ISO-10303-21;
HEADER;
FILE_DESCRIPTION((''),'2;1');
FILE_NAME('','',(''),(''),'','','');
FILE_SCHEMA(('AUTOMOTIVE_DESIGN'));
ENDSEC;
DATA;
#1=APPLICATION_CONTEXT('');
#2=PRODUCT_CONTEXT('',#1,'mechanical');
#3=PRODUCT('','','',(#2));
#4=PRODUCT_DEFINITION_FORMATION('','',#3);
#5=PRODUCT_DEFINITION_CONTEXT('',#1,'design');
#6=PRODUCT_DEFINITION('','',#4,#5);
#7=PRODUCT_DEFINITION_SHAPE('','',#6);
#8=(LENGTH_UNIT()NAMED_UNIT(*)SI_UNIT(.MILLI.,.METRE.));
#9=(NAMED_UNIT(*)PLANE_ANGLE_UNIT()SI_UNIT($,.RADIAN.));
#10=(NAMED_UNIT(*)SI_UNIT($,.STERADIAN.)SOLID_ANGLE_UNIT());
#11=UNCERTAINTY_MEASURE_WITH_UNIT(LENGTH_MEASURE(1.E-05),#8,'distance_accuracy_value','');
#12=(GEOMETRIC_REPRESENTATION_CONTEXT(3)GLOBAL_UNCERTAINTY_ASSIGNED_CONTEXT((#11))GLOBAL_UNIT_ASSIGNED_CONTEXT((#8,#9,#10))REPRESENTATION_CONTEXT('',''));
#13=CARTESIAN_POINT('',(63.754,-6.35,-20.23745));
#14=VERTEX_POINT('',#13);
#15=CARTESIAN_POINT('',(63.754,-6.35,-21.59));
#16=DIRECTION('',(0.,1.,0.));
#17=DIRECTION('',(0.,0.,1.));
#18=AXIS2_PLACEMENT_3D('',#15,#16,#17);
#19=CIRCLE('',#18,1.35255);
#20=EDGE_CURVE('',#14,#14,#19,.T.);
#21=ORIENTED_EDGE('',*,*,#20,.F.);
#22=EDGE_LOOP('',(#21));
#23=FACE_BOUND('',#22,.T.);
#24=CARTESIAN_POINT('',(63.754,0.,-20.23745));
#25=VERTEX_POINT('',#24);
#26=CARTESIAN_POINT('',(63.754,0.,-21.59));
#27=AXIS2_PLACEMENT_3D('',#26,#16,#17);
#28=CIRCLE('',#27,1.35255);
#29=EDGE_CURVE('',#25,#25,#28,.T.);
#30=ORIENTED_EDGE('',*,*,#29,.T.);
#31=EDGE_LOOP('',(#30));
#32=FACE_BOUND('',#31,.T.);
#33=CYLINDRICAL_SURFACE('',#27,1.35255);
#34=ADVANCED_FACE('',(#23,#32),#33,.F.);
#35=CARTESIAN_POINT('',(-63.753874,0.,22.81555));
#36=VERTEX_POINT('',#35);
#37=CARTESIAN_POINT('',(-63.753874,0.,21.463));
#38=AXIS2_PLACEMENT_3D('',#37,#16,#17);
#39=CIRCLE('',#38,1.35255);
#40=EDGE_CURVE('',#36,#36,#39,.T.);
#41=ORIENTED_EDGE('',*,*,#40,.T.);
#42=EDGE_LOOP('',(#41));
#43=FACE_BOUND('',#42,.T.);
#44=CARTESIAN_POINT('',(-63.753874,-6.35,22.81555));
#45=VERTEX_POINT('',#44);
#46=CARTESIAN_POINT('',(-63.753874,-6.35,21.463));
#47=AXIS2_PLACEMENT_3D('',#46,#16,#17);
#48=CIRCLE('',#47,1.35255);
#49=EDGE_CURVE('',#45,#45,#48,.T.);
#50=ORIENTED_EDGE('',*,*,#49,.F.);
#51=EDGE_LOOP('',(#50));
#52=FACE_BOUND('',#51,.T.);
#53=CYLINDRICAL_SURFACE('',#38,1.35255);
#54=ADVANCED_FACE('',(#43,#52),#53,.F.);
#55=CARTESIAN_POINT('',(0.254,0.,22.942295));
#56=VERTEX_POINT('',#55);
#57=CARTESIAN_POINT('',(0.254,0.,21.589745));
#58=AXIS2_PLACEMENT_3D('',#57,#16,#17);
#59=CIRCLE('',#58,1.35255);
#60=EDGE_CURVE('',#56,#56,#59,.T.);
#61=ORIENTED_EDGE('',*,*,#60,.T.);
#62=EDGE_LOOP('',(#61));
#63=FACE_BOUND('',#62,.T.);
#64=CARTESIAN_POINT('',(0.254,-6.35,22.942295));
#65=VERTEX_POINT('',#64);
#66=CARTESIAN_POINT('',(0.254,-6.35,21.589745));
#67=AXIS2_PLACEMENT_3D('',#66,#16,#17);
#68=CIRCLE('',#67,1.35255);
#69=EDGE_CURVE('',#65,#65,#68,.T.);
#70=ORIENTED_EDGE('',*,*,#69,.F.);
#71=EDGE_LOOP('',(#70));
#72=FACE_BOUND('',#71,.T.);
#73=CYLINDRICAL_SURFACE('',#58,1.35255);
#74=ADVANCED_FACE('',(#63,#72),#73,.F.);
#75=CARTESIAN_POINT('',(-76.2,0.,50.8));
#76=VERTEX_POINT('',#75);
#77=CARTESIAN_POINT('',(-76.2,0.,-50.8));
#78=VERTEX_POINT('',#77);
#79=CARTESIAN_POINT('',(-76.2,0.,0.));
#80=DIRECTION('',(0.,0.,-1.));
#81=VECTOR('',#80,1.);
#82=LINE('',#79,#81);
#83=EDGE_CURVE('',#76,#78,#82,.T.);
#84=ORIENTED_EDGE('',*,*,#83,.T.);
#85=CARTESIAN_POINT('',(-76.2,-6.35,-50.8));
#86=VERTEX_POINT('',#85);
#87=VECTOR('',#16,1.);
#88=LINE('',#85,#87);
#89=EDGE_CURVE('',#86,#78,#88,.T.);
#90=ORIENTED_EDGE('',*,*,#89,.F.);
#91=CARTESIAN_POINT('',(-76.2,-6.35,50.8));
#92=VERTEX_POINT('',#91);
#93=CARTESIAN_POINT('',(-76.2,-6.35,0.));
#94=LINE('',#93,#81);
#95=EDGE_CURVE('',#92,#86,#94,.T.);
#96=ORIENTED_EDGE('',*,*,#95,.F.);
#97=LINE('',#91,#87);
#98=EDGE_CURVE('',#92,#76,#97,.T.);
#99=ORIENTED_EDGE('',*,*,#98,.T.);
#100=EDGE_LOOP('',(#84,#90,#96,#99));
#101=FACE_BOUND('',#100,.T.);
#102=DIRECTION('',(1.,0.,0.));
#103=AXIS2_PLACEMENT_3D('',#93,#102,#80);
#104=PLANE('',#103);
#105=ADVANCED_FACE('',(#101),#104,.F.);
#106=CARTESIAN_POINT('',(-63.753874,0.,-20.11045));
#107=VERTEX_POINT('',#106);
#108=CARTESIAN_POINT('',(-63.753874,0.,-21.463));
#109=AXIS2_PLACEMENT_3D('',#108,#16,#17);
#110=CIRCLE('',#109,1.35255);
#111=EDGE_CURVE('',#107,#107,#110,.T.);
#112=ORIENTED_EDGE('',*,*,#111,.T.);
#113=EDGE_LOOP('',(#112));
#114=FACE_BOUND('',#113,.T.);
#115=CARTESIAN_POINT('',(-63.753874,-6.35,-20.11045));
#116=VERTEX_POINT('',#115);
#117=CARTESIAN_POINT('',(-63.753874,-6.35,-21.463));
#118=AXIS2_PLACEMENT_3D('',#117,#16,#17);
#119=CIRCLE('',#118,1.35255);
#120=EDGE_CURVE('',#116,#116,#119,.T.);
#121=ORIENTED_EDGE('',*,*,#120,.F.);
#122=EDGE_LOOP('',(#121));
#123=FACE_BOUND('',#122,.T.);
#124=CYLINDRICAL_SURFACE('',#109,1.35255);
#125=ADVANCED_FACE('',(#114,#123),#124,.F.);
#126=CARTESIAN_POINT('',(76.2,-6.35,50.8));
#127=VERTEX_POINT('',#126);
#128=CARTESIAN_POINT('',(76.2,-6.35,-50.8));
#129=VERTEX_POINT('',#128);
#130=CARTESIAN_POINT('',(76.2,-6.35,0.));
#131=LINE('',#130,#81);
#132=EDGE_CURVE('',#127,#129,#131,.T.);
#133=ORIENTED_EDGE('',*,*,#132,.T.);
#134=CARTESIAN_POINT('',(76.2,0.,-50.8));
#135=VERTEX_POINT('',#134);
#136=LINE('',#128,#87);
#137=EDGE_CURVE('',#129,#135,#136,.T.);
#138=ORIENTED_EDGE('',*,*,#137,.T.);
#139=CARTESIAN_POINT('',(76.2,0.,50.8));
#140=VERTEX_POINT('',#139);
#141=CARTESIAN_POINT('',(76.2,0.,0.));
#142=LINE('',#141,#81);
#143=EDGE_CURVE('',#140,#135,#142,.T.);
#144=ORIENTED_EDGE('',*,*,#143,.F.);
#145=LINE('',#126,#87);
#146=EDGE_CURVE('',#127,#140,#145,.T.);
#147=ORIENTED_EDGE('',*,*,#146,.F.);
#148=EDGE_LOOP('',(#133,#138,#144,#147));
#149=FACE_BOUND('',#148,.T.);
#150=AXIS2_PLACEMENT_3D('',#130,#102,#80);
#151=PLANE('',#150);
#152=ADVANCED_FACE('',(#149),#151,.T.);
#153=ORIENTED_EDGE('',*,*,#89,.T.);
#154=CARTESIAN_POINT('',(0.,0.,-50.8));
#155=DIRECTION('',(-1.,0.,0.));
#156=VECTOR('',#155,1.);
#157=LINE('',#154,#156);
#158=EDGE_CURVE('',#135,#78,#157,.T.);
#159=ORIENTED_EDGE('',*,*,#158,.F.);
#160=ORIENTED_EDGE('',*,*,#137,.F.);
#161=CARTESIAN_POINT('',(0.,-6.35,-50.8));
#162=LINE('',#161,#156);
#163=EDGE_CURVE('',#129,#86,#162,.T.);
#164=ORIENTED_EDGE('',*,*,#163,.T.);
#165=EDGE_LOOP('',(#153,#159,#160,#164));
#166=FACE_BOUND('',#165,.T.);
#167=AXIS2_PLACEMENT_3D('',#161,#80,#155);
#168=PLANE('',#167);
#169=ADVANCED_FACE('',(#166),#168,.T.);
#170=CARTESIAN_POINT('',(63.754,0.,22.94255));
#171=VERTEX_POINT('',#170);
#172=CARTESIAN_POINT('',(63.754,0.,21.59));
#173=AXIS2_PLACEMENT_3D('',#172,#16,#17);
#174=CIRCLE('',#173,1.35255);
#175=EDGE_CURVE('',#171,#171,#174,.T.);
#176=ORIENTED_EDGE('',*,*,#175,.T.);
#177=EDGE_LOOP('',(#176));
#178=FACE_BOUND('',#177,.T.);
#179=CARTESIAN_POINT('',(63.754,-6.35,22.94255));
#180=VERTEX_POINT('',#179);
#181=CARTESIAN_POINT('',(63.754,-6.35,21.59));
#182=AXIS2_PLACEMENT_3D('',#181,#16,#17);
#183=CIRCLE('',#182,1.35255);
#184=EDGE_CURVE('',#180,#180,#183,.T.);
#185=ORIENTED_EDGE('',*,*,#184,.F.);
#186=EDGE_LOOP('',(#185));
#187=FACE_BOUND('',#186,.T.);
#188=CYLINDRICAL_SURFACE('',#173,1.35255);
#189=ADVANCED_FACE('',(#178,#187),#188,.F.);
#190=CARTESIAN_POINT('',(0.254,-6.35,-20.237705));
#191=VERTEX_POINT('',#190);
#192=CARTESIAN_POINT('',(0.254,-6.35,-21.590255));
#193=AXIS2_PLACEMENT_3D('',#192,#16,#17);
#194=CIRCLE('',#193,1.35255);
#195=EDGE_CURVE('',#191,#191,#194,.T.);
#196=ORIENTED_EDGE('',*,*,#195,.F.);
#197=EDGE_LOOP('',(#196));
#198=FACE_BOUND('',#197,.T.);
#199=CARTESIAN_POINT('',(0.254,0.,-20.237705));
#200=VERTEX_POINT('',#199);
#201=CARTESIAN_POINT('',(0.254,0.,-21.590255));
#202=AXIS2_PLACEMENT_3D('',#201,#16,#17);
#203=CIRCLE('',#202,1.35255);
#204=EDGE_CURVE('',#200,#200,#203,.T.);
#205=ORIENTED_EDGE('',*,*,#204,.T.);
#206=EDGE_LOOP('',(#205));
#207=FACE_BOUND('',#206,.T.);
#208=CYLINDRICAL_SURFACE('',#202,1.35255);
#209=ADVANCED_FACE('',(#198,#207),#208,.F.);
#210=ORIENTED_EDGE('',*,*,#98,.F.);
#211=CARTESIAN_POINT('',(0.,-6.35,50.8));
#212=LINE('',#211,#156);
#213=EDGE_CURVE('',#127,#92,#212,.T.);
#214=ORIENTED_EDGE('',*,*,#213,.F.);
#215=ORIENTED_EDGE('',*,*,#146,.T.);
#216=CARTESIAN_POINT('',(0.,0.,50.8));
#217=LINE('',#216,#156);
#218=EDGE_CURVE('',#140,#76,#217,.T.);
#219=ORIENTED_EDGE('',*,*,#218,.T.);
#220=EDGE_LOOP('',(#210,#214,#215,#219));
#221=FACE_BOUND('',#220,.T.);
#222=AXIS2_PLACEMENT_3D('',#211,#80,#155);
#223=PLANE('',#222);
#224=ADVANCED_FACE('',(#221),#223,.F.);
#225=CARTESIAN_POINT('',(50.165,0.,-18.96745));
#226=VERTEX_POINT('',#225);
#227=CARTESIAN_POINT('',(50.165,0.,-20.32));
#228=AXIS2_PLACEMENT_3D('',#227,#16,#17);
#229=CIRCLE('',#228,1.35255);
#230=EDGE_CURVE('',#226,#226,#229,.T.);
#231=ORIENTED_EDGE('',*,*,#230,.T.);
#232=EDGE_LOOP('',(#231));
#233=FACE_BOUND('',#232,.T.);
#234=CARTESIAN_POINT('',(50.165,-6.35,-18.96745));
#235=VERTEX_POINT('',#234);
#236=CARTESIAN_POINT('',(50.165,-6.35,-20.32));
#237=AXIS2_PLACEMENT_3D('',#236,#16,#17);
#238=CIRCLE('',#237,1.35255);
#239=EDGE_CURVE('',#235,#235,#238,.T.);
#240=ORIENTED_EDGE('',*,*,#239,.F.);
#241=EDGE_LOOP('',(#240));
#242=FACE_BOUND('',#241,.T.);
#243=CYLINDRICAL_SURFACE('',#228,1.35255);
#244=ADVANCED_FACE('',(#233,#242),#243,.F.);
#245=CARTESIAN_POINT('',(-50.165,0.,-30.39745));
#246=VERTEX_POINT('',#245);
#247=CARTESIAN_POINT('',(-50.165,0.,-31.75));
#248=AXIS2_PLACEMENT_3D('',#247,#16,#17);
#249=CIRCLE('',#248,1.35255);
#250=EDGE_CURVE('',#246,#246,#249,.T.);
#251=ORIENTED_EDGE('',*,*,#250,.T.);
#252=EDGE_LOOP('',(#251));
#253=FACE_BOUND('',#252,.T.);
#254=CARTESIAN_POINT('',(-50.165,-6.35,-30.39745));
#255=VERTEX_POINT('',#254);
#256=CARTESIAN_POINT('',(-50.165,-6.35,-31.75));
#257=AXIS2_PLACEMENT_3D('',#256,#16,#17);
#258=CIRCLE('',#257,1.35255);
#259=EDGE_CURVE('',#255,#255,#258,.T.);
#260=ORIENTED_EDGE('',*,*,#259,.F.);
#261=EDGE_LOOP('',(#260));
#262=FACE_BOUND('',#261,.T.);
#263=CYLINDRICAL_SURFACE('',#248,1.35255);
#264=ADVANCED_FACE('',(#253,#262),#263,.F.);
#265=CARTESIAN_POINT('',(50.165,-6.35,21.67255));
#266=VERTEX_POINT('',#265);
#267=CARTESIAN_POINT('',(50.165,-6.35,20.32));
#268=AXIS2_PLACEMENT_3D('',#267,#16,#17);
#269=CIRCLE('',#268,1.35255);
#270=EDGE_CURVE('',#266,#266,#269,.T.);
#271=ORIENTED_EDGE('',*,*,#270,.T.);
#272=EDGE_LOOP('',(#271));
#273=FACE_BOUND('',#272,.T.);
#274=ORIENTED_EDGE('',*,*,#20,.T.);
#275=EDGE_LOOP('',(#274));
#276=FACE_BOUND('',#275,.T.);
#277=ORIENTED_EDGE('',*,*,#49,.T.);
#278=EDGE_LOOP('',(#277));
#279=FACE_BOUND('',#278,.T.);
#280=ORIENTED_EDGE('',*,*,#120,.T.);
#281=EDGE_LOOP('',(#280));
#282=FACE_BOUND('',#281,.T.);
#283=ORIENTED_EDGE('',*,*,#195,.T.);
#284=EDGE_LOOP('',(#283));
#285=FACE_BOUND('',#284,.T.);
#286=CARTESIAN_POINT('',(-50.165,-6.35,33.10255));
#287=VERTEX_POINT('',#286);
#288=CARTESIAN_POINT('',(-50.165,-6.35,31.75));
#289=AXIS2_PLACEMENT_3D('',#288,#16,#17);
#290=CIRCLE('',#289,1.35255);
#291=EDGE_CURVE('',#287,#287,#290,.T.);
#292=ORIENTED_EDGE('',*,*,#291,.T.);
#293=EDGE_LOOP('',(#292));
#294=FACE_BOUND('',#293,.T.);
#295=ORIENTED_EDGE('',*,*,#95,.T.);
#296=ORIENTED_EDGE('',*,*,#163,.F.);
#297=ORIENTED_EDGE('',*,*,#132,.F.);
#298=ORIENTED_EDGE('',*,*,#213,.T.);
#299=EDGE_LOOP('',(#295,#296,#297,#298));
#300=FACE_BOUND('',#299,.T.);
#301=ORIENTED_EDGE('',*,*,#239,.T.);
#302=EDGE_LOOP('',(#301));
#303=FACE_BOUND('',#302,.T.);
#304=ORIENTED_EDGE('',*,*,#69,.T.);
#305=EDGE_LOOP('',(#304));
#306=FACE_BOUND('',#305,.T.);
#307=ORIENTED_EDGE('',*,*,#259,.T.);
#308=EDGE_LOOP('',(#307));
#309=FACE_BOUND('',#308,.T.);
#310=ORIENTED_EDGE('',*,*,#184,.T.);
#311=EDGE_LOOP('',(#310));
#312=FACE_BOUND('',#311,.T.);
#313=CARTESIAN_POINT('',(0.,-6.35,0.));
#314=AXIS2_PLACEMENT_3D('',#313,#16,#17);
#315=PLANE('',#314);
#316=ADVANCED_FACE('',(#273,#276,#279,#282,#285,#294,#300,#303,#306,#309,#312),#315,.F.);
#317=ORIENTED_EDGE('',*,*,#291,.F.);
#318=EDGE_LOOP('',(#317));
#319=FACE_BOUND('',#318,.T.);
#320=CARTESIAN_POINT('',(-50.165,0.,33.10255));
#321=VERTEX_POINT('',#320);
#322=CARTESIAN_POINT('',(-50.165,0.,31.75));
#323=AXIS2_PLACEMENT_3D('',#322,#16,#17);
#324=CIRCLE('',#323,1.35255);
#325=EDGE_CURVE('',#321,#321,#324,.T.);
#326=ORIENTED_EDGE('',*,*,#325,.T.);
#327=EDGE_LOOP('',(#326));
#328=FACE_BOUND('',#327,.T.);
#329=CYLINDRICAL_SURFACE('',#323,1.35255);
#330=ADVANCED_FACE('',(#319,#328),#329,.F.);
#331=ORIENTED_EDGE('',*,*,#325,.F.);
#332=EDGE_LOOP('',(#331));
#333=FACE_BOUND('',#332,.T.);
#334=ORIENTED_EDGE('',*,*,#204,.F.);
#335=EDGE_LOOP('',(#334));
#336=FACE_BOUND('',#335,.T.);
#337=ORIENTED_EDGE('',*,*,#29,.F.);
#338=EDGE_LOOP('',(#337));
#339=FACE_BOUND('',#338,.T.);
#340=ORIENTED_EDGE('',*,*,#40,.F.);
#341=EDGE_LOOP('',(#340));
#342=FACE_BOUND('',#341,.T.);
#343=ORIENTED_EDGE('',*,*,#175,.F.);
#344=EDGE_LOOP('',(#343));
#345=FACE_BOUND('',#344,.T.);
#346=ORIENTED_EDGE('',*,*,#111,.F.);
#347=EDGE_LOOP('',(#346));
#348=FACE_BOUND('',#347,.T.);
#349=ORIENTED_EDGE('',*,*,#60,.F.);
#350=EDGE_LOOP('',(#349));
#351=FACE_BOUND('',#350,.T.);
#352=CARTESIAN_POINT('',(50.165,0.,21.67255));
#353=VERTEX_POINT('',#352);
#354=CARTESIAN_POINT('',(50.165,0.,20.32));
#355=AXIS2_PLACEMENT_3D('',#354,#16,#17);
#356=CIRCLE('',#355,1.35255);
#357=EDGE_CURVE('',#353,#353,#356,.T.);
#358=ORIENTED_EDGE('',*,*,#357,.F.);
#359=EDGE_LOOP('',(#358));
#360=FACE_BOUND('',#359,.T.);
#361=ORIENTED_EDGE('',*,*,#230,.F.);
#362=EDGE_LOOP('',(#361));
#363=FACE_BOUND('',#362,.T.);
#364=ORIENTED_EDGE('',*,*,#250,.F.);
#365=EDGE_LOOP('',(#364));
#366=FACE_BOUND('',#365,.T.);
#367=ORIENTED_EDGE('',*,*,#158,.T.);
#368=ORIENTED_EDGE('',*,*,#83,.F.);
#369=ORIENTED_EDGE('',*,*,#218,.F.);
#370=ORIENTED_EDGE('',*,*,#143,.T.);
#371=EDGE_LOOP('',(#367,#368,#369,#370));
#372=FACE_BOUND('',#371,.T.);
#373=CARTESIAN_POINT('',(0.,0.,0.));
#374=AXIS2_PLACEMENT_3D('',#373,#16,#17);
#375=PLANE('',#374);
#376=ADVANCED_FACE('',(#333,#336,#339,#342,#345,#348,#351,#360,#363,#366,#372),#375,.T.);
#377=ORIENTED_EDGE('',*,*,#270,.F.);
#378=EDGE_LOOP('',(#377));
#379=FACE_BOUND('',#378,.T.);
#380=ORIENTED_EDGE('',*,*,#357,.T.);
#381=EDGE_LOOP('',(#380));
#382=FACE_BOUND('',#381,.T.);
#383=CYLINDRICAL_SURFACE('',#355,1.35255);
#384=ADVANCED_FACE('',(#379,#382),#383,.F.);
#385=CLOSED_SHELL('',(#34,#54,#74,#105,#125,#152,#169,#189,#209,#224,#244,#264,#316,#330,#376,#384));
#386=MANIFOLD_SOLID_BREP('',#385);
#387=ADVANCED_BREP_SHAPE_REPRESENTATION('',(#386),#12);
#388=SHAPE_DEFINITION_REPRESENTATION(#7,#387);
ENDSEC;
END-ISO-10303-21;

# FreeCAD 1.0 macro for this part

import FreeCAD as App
import Part
import Sketcher
from FreeCAD import Vector
Q = App.Units.Quantity

doc = App.newDocument("Part")
params = doc.addObject("Spreadsheet::Sheet", "Params")
for row, (alias, value) in enumerate([
    ("sketch1_width", "6 in"),
    ("sketch1_height", "4 in"),
    ("pad1_length", "0.25 in"),
    ("hole_diameter", "0.1065 in"),
    ("hole2_diameter", "0.1065 in"),
], start=1):
    params.set(f"A{row}", alias)
    params.set(f"B{row}", "=" + value)
    params.setAlias(f"B{row}", alias)

body = doc.addObject("PartDesign::Body", "Body")

# Sketch on XZ plane
sketch1 = doc.addObject("Sketcher::SketchObject", "Sketch")
body.addObject(sketch1)
sketch1.AttachmentSupport = (doc.XZ_Plane, [""])
sketch1.MapMode = "FlatFace"
sketch1.addGeometry([
    Part.LineSegment(Vector(-76, -51, 0), Vector(-76, 51, 0)),
    Part.LineSegment(Vector(-76, 51, 0), Vector(76, 51, 0)),
    Part.LineSegment(Vector(76, 51, 0), Vector(76, -51, 0)),
    Part.LineSegment(Vector(76, -51, 0), Vector(-76, -51, 0)),
], False)
sketch1.addConstraint([
    Sketcher.Constraint("Coincident", 0, 2, 1, 1),
    Sketcher.Constraint("Coincident", 1, 2, 2, 1),
    Sketcher.Constraint("Coincident", 2, 2, 3, 1),
    Sketcher.Constraint("Coincident", 3, 2, 0, 1),
    Sketcher.Constraint("Vertical", 0),
    Sketcher.Constraint("Horizontal", 1),
    Sketcher.Constraint("Vertical", 2),
    Sketcher.Constraint("Horizontal", 3),
    Sketcher.Constraint("Symmetric", 0, 2, 2, 2, -1, 1),
    Sketcher.Constraint("DistanceX", 1, 1, 1, 2, Q("6 in")),
    Sketcher.Constraint("DistanceY", 0, 1, 0, 2, Q("4 in")),
])
sketch1.setExpression("Constraints[9]", "Params.sketch1_width")
sketch1.setExpression("Constraints[10]", "Params.sketch1_height")
pad1 = doc.addObject("PartDesign::Pad", "Pad")
body.addObject(pad1)
pad1.Profile = sketch1
pad1.setExpression("Length", "Params.pad1_length")

# Sketch on XZ plane
sketch2 = doc.addObject("Sketcher::SketchObject", "Sketch001")
body.addObject(sketch2)
sketch2.AttachmentSupport = (doc.XZ_Plane, [""])
sketch2.MapMode = "FlatFace"
sketch2.addGeometry([
    Part.Circle(Vector(-63.8, -21.5, 0), Vector(0, 0, 1), 1.4),  # 0
    Part.Circle(Vector(0.3, -21.6, 0), Vector(0, 0, 1), 1.4),  # 1
    Part.Circle(Vector(63.8, -21.6, 0), Vector(0, 0, 1), 1.4),  # 2
    Part.Circle(Vector(63.8, 21.6, 0), Vector(0, 0, 1), 1.4),  # 3
    Part.Circle(Vector(0.3, 21.6, 0), Vector(0, 0, 1), 1.4),  # 4
    Part.Circle(Vector(-63.8, 21.5, 0), Vector(0, 0, 1), 1.4),  # 5
], False)
sketch2.addConstraint([
    Sketcher.Constraint("Equal", 0, 1),
    Sketcher.Constraint("Equal", 1, 2),
    Sketcher.Constraint("Equal", 2, 3),
    Sketcher.Constraint("Equal", 3, 4),
    Sketcher.Constraint("Equal", 4, 5),
    Sketcher.Constraint("Symmetric", 2, 3, 3, 3, -1),
    Sketcher.Constraint("Symmetric", 0, 3, 5, 3, -1),
    Sketcher.Constraint("Vertical", 1, 3, 4, 3),
    Sketcher.Constraint("Diameter", 0, Q("0.1065 in")),
    Sketcher.Constraint("DistanceX", 1, 3, 2, 3, Q("2.5 in")),
    Sketcher.Constraint("DistanceY", 2, 3, 3, 3, Q("1.7 in")),
    Sketcher.Constraint("DistanceY", 1, 3, 4, 3, Q("1.7 in")),
    Sketcher.Constraint("DistanceX", -1, 1, 1, 3, Q("0.01 in")),
    Sketcher.Constraint("DistanceY", 0, 3, 5, 3, Q("1.69 in")),
    Sketcher.Constraint("DistanceX", 0, 3, -1, 1, Q("63.753874 mm")),
    Sketcher.Constraint("DistanceY", 1, 3, -1, 1, Q("21.590255 mm")),
])
doc.recompute()
hole = doc.addObject("PartDesign::Hole", "Hole")
body.addObject(hole)
hole.Profile = sketch2
hole.ThreadType = "None"
hole.setExpression("Diameter", "Params.hole_diameter")
hole.DepthType = "ThroughAll"
hole.Reversed = True

# Sketch on XZ plane
sketch3 = doc.addObject("Sketcher::SketchObject", "Sketch002")
body.addObject(sketch3)
sketch3.AttachmentSupport = (doc.XZ_Plane, [""])
sketch3.MapMode = "FlatFace"
sketch3.addGeometry([
    Part.Circle(Vector(-50.2, -31.8, 0), Vector(0, 0, 1), 1.4),
    Part.Circle(Vector(-50.2, 31.8, 0), Vector(0, 0, 1), 1.4),
    Part.Circle(Vector(50.2, 20.3, 0), Vector(0, 0, 1), 1.4),
    Part.Circle(Vector(50.2, -20.3, 0), Vector(0, 0, 1), 1.4),
], False)
sketch3.addConstraint([
    Sketcher.Constraint("Equal", 0, 1),
    Sketcher.Constraint("Equal", 1, 2),
    Sketcher.Constraint("Equal", 2, 3),
    Sketcher.Constraint("Symmetric", 0, 3, 1, 3, -1),
    Sketcher.Constraint("Symmetric", 2, 3, 3, 3, -1),
    Sketcher.Constraint("Diameter", 0, Q("0.1065 in")),
    Sketcher.Constraint("DistanceY", -1, 1, 2, 3, Q("0.8 in")),
    Sketcher.Constraint("DistanceY", 0, 3, 1, 3, Q("2.5 in")),
    Sketcher.Constraint("DistanceX", 1, 3, 2, 3, Q("3.95 in")),
    Sketcher.Constraint("DistanceX", 0, 3, -1, 1, Q("1.975 in")),
])
doc.recompute()
hole2 = doc.addObject("PartDesign::Hole", "Hole001")
body.addObject(hole2)
hole2.Profile = sketch3
hole2.ThreadType = "None"
hole2.setExpression("Diameter", "Params.hole2_diameter")
hole2.DepthType = "ThroughAll"
hole2.Reversed = True

doc.recompute()
